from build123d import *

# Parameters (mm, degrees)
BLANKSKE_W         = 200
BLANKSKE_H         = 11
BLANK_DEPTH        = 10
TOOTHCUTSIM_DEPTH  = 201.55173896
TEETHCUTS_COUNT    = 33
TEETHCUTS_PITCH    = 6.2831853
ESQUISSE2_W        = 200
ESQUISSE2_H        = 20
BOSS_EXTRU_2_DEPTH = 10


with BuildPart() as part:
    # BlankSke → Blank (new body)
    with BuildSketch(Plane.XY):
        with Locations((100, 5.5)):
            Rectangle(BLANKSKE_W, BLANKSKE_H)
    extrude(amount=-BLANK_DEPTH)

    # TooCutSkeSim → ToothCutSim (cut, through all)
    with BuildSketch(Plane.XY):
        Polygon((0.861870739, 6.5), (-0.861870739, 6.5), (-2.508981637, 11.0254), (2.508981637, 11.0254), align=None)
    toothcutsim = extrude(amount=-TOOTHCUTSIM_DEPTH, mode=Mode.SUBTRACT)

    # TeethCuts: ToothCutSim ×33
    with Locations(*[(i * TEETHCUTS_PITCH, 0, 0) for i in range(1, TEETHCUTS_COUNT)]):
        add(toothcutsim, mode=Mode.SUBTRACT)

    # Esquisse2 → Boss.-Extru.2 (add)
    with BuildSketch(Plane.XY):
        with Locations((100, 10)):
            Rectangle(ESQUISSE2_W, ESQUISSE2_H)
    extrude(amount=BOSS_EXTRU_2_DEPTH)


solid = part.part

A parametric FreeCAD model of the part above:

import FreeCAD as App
import Part
import Sketcher

V = App.Vector
Q = App.Units.Quantity

doc = App.newDocument("Part")
body = doc.addObject("PartDesign::Body", "Body")

sketch1 = body.newObject("Sketcher::SketchObject", "Sketch")
sketch1.AttachmentSupport = (doc.getObject("XY_Plane"), [""])
sketch1.MapMode = "FlatFace"
sketch1.addGeometry([
    Part.LineSegment(V(0, 11, 0), V(0, 0, 0)),
    Part.LineSegment(V(0, 0, 0), V(200, 0, 0)),
    Part.LineSegment(V(200, 0, 0), V(200, 11, 0)),
    Part.LineSegment(V(200, 11, 0), V(0, 11, 0)),
], False)
sketch1.addConstraint([
    Sketcher.Constraint("Coincident", 0, 2, 1, 1),
    Sketcher.Constraint("Coincident", 1, 2, 2, 1),
    Sketcher.Constraint("Coincident", 2, 2, 3, 1),
    Sketcher.Constraint("Coincident", 3, 2, 0, 1),
    Sketcher.Constraint("Vertical", 0),
    Sketcher.Constraint("Horizontal", 1),
    Sketcher.Constraint("Vertical", 2),
    Sketcher.Constraint("Horizontal", 3),
    Sketcher.Constraint("Coincident", 0, 2, -1, 1),
    Sketcher.Constraint("DistanceX", 1, 1, 1, 2, Q("200 mm")),
    Sketcher.Constraint("DistanceY", 0, 2, 0, 1, Q("11 mm")),
])
pad1 = body.newObject("PartDesign::Pad", "Pad")
pad1.Profile = sketch1
pad1.Length = 10
pad1.Reversed = True

sketch2 = body.newObject("Sketcher::SketchObject", "Sketch001")
sketch2.AttachmentSupport = (doc.getObject("XY_Plane"), [""])
sketch2.MapMode = "FlatFace"
sketch2.addGeometry([
    Part.LineSegment(V(-0.9, 6.5, 0), V(0.9, 6.5, 0)),
    Part.LineSegment(V(0.9, 6.5, 0), V(2.5, 11, 0)),
    Part.LineSegment(V(2.5, 11, 0), V(-2.5, 11, 0)),
    Part.LineSegment(V(-2.5, 11, 0), V(-0.9, 6.5, 0)),
], False)
sketch2.addConstraint([
    Sketcher.Constraint("Coincident", 0, 2, 1, 1),
    Sketcher.Constraint("Coincident", 1, 2, 2, 1),
    Sketcher.Constraint("Coincident", 2, 2, 3, 1),
    Sketcher.Constraint("Coincident", 3, 2, 0, 1),
    Sketcher.Constraint("Horizontal", 0),
    Sketcher.Constraint("Horizontal", 2),
    Sketcher.Constraint("Equal", 1, 3),
    Sketcher.Constraint("Angle", 1, Q("70 deg")),
    Sketcher.Constraint("DistanceY", -1, 1, 0, 2, Q("6.5 mm")),
    Sketcher.Constraint("DistanceX", 0, 1, 0, 2, Q("1.723741 mm")),
    Sketcher.Constraint("DistanceY", -1, 1, 1, 2, Q("11.0254 mm")),
    Sketcher.Constraint("DistanceX", -1, 1, 0, 2, Q("0.861871 mm")),
])
pocket1 = body.newObject("PartDesign::Pocket", "Pocket")
pocket1.Profile = sketch2
pocket1.Type = "ThroughAll"
doc.recompute()

linearpattern = body.newObject("PartDesign::LinearPattern", "LinearPattern")
linearpattern.Originals = [pocket1]
linearpattern.Direction = (doc.getObject("X_Axis"), [""])
linearpattern.Mode = "offset"
linearpattern.Offset = 6.283185
linearpattern.Occurrences = 33
body.Tip = linearpattern

sketch3 = body.newObject("Sketcher::SketchObject", "Sketch002")
sketch3.AttachmentSupport = (doc.getObject("XY_Plane"), [""])
sketch3.MapMode = "FlatFace"
sketch3.addGeometry([
    Part.LineSegment(V(0, 20, 0), V(0, 0, 0)),
    Part.LineSegment(V(0, 0, 0), V(200, 0, 0)),
    Part.LineSegment(V(200, 0, 0), V(200, 20, 0)),
    Part.LineSegment(V(200, 20, 0), V(0, 20, 0)),
], False)
sketch3.addConstraint([
    Sketcher.Constraint("Coincident", 0, 2, 1, 1),
    Sketcher.Constraint("Coincident", 1, 2, 2, 1),
    Sketcher.Constraint("Coincident", 2, 2, 3, 1),
    Sketcher.Constraint("Coincident", 3, 2, 0, 1),
    Sketcher.Constraint("Vertical", 0),
    Sketcher.Constraint("Horizontal", 1),
    Sketcher.Constraint("Vertical", 2),
    Sketcher.Constraint("Horizontal", 3),
    Sketcher.Constraint("Coincident", 0, 2, -1, 1),
    Sketcher.Constraint("DistanceX", 1, 1, 1, 2, Q("200 mm")),
    Sketcher.Constraint("DistanceY", 0, 2, 0, 1, Q("20 mm")),
])
pad2 = body.newObject("PartDesign::Pad", "Pad001")
pad2.Profile = sketch3
pad2.Length = 10

doc.recompute()
